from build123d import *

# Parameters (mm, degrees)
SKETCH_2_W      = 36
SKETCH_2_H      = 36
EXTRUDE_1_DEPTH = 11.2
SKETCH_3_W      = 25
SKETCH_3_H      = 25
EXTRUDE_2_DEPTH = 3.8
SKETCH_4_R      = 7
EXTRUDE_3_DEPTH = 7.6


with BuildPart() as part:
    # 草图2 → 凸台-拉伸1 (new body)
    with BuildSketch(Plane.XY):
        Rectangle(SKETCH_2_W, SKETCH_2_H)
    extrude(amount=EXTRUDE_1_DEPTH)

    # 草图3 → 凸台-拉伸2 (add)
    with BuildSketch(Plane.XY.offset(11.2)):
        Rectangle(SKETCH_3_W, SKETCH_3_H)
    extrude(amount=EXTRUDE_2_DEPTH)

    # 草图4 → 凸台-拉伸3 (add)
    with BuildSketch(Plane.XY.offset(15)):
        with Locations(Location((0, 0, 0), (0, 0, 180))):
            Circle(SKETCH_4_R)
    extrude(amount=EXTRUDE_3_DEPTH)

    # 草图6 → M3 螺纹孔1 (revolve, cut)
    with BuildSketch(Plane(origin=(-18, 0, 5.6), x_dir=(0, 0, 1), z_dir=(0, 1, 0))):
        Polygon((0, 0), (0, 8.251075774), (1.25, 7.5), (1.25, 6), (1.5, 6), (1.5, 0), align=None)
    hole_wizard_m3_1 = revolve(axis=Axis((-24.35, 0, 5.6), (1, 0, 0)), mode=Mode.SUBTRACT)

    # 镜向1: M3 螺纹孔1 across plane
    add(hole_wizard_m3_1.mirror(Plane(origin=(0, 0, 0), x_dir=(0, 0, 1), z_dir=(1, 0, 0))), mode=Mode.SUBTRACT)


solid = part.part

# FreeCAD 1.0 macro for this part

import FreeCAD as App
import Part
import Sketcher
from FreeCAD import Vector
Q = App.Units.Quantity

doc = App.newDocument("Part")
body = doc.addObject("PartDesign::Body", "Body")

# Sketch on XY plane
sketch1 = body.newObject("Sketcher::SketchObject", "Sketch")
sketch1.AttachmentSupport = (doc.getObject("XY_Plane"), [""])
sketch1.MapMode = "FlatFace"
sketch1.addGeometry([
    Part.LineSegment(Vector(-18, 18, 0), Vector(-18, -18, 0)),
    Part.LineSegment(Vector(-18, -18, 0), Vector(18, -18, 0)),
    Part.LineSegment(Vector(18, -18, 0), Vector(18, 18, 0)),
    Part.LineSegment(Vector(18, 18, 0), Vector(-18, 18, 0)),
], False)
sketch1.addConstraint([
    Sketcher.Constraint("Coincident", 0, 2, 1, 1),
    Sketcher.Constraint("Coincident", 1, 2, 2, 1),
    Sketcher.Constraint("Coincident", 2, 2, 3, 1),
    Sketcher.Constraint("Coincident", 3, 2, 0, 1),
    Sketcher.Constraint("Vertical", 0),
    Sketcher.Constraint("Horizontal", 1),
    Sketcher.Constraint("Vertical", 2),
    Sketcher.Constraint("Horizontal", 3),
    Sketcher.Constraint("Symmetric", 0, 2, 2, 2, -1, 1),
    Sketcher.Constraint("Equal", 3, 0),
    Sketcher.Constraint("DistanceX", 1, 1, 1, 2, Q("36 mm")),
])
pad1 = body.newObject("PartDesign::Pad", "Pad")
pad1.Profile = sketch1
pad1.Length = 11.2

# Sketch on XY plane
sketch2 = body.newObject("Sketcher::SketchObject", "Sketch001")
sketch2.AttachmentSupport = (doc.getObject("XY_Plane"), [""])
sketch2.MapMode = "FlatFace"
sketch2.AttachmentOffset = App.Placement(Vector(0, 0, 11.2), App.Rotation())
sketch2.addGeometry([
    Part.LineSegment(Vector(-12.5, 12.5, 0), Vector(-12.5, -12.5, 0)),
    Part.LineSegment(Vector(-12.5, -12.5, 0), Vector(12.5, -12.5, 0)),
    Part.LineSegment(Vector(12.5, -12.5, 0), Vector(12.5, 12.5, 0)),
    Part.LineSegment(Vector(12.5, 12.5, 0), Vector(-12.5, 12.5, 0)),
], False)
sketch2.addConstraint([
    Sketcher.Constraint("Coincident", 0, 2, 1, 1),
    Sketcher.Constraint("Coincident", 1, 2, 2, 1),
    Sketcher.Constraint("Coincident", 2, 2, 3, 1),
    Sketcher.Constraint("Coincident", 3, 2, 0, 1),
    Sketcher.Constraint("Vertical", 0),
    Sketcher.Constraint("Horizontal", 1),
    Sketcher.Constraint("Vertical", 2),
    Sketcher.Constraint("Horizontal", 3),
    Sketcher.Constraint("Symmetric", 0, 2, 2, 2, -1, 1),
    Sketcher.Constraint("Equal", 3, 0),
    Sketcher.Constraint("DistanceX", 1, 1, 1, 2, Q("25 mm")),
])
pad2 = body.newObject("PartDesign::Pad", "Pad001")
pad2.Profile = sketch2
pad2.Length = 3.8

# Sketch on XY plane
sketch3 = body.newObject("Sketcher::SketchObject", "Sketch002")
sketch3.AttachmentSupport = (doc.getObject("XY_Plane"), [""])
sketch3.MapMode = "FlatFace"
sketch3.AttachmentOffset = App.Placement(Vector(0, 0, 15), App.Rotation())
sketch3.addGeometry(Part.Circle(Vector(0, 0, 0), Vector(0, 0, 1), 7), False)
sketch3.addConstraint([
    Sketcher.Constraint("Coincident", 0, 3, -1, 1),
    Sketcher.Constraint("Diameter", 0, Q("14 mm")),
])
pad3 = body.newObject("PartDesign::Pad", "Pad002")
pad3.Profile = sketch3
pad3.Length = 7.6

# Sketch on XZ plane
sketch4 = body.newObject("Sketcher::SketchObject", "Sketch003")
sketch4.AttachmentSupport = (doc.getObject("XZ_Plane"), [""])
sketch4.MapMode = "FlatFace"
sketch4.addGeometry([
    Part.LineSegment(Vector(-9.748924, 5.6, 0), Vector(-18, 5.6, 0)),  # 0
    Part.LineSegment(Vector(-18, 5.6, 0), Vector(-18, 7.1, 0)),  # 1
    Part.LineSegment(Vector(-18, 7.1, 0), Vector(-12, 7.1, 0)),  # 2
    Part.LineSegment(Vector(-12, 7.1, 0), Vector(-12, 6.85, 0)),  # 3
    Part.LineSegment(Vector(-12, 6.85, 0), Vector(-10.5, 6.85, 0)),  # 4
    Part.LineSegment(Vector(-10.5, 6.85, 0), Vector(-9.748924, 5.6, 0)),  # 5
], False)
sketch4.addGeometry(Part.LineSegment(Vector(-18, 5.6, 0), Vector(-9.748924, 5.6, 0)), True)  # axis
sketch4.addConstraint([
    Sketcher.Constraint("Coincident", 0, 2, 1, 1),
    Sketcher.Constraint("Coincident", 1, 2, 2, 1),
    Sketcher.Constraint("Coincident", 2, 2, 3, 1),
    Sketcher.Constraint("Coincident", 3, 2, 4, 1),
    Sketcher.Constraint("Coincident", 4, 2, 5, 1),
    Sketcher.Constraint("Coincident", 5, 2, 0, 1),
    Sketcher.Constraint("Horizontal", 0),
    Sketcher.Constraint("Vertical", 1),
    Sketcher.Constraint("Horizontal", 2),
    Sketcher.Constraint("Vertical", 3),
    Sketcher.Constraint("Horizontal", 4),
    Sketcher.Constraint("Horizontal", 6),
    Sketcher.Constraint("Coincident", 6, 1, 0, 2),
    Sketcher.Constraint("Equal", 0, 6),
    Sketcher.Constraint("Equal", 4, 1),
    Sketcher.Constraint("DistanceX", 2, 1, 2, 2, Q("6 mm")),
    Sketcher.Constraint("Angle", 5, Q("-59 deg")),
    Sketcher.Constraint("DistanceX", 4, 1, 4, 2, Q("1.5 mm")),
    Sketcher.Constraint("DistanceX", 0, 2, -1, 1, Q("18 mm")),
    Sketcher.Constraint("DistanceY", 3, 2, 3, 1, Q("0.25 mm")),
    Sketcher.Constraint("DistanceY", -1, 1, 0, 2, Q("5.6 mm")),
])
groove = body.newObject("PartDesign::Groove", "Groove")
groove.Profile = sketch4
groove.ReferenceAxis = (sketch4, ["Axis0"])
groove.Angle = 360
doc.recompute()

mirrored = body.newObject("PartDesign::Mirrored", "Mirrored")
mirrored.Originals = [groove]
mirrored.MirrorPlane = (doc.getObject("YZ_Plane"), [""])
body.Tip = mirrored

doc.recompute()
